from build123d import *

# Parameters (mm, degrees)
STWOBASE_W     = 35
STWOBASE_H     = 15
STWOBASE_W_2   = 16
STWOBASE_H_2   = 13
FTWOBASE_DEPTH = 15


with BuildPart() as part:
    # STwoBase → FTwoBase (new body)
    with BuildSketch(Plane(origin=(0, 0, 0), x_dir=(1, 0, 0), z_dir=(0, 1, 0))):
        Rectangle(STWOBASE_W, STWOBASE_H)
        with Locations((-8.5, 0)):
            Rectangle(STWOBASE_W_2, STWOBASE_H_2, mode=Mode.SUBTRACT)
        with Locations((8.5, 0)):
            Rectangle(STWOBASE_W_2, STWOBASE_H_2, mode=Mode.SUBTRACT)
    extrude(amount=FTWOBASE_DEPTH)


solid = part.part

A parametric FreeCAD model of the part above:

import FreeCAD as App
import Part
import Sketcher
from FreeCAD import Vector
Q = App.Units.Quantity


def add_polygon(sketch, points):
    """Adds a closed chain of lines whose ends are joined by coincident constraints."""
    first, n = sketch.GeometryCount, len(points)
    for a, b in zip(points, points[1:] + points[:1]):
        sketch.addGeometry(Part.LineSegment(App.Vector(*a, 0), App.Vector(*b, 0)), False)
    for i in range(n):
        sketch.addConstraint(Sketcher.Constraint("Coincident", first + i, 2, first + (i + 1) % n, 1))

doc = App.newDocument("Part")
body = doc.addObject("PartDesign::Body", "Body")

sketch1 = doc.addObject("Sketcher::SketchObject", "Sketch")
body.addObject(sketch1)
sketch1.AttachmentSupport = (doc.XZ_Plane, [""])
sketch1.MapMode = "FlatFace"
add_polygon(sketch1, [(-18, -8), (-18, 8), (18, 8), (18, -8)])
add_polygon(sketch1, [(0, 6), (-16, 6), (-16, -6), (0, -6)])
add_polygon(sketch1, [(16, 6), (0, 6), (0, -6), (16, -6)])
sketch1.addConstraint(Sketcher.Constraint("Vertical", 0))
sketch1.addConstraint(Sketcher.Constraint("Horizontal", 1))
sketch1.addConstraint(Sketcher.Constraint("Vertical", 2))
sketch1.addConstraint(Sketcher.Constraint("Horizontal", 3))
sketch1.addConstraint(Sketcher.Constraint("Horizontal", 4))
sketch1.addConstraint(Sketcher.Constraint("Vertical", 5))
sketch1.addConstraint(Sketcher.Constraint("Horizontal", 6))
sketch1.addConstraint(Sketcher.Constraint("Vertical", 7))
sketch1.addConstraint(Sketcher.Constraint("Horizontal", 8))
sketch1.addConstraint(Sketcher.Constraint("Vertical", 9))
sketch1.addConstraint(Sketcher.Constraint("Horizontal", 10))
sketch1.addConstraint(Sketcher.Constraint("Vertical", 11))
sketch1.addConstraint(Sketcher.Constraint("Symmetric", 0, 2, 2, 2, -1, 1))
sketch1.addConstraint(Sketcher.Constraint("Symmetric", 6, 2, 8, 2, -1, 1))
sketch1.addConstraint(Sketcher.Constraint("Symmetric", 4, 2, 10, 2, -1, 1))
sketch1.addConstraint(Sketcher.Constraint("Horizontal", 7, 2, 8, 2))
sketch1.addConstraint(Sketcher.Constraint("DistanceX", 1, 1, 1, 2, Q("35 mm")))
sketch1.addConstraint(Sketcher.Constraint("DistanceX", 4, 2, 4, 1, Q("16 mm")))
sketch1.addConstraint(Sketcher.Constraint("DistanceY", 0, 1, 0, 2, Q("15 mm")))
sketch1.addConstraint(Sketcher.Constraint("DistanceY", 5, 2, 5, 1, Q("13 mm")))
sketch1.addConstraint(Sketcher.Constraint("DistanceX", 0, 2, 4, 2, Q("1 mm")))
pad1 = doc.addObject("PartDesign::Pad", "Pad")
body.addObject(pad1)
pad1.Profile = sketch1
pad1.Length = 15
pad1.Reversed = True

doc.recompute()
